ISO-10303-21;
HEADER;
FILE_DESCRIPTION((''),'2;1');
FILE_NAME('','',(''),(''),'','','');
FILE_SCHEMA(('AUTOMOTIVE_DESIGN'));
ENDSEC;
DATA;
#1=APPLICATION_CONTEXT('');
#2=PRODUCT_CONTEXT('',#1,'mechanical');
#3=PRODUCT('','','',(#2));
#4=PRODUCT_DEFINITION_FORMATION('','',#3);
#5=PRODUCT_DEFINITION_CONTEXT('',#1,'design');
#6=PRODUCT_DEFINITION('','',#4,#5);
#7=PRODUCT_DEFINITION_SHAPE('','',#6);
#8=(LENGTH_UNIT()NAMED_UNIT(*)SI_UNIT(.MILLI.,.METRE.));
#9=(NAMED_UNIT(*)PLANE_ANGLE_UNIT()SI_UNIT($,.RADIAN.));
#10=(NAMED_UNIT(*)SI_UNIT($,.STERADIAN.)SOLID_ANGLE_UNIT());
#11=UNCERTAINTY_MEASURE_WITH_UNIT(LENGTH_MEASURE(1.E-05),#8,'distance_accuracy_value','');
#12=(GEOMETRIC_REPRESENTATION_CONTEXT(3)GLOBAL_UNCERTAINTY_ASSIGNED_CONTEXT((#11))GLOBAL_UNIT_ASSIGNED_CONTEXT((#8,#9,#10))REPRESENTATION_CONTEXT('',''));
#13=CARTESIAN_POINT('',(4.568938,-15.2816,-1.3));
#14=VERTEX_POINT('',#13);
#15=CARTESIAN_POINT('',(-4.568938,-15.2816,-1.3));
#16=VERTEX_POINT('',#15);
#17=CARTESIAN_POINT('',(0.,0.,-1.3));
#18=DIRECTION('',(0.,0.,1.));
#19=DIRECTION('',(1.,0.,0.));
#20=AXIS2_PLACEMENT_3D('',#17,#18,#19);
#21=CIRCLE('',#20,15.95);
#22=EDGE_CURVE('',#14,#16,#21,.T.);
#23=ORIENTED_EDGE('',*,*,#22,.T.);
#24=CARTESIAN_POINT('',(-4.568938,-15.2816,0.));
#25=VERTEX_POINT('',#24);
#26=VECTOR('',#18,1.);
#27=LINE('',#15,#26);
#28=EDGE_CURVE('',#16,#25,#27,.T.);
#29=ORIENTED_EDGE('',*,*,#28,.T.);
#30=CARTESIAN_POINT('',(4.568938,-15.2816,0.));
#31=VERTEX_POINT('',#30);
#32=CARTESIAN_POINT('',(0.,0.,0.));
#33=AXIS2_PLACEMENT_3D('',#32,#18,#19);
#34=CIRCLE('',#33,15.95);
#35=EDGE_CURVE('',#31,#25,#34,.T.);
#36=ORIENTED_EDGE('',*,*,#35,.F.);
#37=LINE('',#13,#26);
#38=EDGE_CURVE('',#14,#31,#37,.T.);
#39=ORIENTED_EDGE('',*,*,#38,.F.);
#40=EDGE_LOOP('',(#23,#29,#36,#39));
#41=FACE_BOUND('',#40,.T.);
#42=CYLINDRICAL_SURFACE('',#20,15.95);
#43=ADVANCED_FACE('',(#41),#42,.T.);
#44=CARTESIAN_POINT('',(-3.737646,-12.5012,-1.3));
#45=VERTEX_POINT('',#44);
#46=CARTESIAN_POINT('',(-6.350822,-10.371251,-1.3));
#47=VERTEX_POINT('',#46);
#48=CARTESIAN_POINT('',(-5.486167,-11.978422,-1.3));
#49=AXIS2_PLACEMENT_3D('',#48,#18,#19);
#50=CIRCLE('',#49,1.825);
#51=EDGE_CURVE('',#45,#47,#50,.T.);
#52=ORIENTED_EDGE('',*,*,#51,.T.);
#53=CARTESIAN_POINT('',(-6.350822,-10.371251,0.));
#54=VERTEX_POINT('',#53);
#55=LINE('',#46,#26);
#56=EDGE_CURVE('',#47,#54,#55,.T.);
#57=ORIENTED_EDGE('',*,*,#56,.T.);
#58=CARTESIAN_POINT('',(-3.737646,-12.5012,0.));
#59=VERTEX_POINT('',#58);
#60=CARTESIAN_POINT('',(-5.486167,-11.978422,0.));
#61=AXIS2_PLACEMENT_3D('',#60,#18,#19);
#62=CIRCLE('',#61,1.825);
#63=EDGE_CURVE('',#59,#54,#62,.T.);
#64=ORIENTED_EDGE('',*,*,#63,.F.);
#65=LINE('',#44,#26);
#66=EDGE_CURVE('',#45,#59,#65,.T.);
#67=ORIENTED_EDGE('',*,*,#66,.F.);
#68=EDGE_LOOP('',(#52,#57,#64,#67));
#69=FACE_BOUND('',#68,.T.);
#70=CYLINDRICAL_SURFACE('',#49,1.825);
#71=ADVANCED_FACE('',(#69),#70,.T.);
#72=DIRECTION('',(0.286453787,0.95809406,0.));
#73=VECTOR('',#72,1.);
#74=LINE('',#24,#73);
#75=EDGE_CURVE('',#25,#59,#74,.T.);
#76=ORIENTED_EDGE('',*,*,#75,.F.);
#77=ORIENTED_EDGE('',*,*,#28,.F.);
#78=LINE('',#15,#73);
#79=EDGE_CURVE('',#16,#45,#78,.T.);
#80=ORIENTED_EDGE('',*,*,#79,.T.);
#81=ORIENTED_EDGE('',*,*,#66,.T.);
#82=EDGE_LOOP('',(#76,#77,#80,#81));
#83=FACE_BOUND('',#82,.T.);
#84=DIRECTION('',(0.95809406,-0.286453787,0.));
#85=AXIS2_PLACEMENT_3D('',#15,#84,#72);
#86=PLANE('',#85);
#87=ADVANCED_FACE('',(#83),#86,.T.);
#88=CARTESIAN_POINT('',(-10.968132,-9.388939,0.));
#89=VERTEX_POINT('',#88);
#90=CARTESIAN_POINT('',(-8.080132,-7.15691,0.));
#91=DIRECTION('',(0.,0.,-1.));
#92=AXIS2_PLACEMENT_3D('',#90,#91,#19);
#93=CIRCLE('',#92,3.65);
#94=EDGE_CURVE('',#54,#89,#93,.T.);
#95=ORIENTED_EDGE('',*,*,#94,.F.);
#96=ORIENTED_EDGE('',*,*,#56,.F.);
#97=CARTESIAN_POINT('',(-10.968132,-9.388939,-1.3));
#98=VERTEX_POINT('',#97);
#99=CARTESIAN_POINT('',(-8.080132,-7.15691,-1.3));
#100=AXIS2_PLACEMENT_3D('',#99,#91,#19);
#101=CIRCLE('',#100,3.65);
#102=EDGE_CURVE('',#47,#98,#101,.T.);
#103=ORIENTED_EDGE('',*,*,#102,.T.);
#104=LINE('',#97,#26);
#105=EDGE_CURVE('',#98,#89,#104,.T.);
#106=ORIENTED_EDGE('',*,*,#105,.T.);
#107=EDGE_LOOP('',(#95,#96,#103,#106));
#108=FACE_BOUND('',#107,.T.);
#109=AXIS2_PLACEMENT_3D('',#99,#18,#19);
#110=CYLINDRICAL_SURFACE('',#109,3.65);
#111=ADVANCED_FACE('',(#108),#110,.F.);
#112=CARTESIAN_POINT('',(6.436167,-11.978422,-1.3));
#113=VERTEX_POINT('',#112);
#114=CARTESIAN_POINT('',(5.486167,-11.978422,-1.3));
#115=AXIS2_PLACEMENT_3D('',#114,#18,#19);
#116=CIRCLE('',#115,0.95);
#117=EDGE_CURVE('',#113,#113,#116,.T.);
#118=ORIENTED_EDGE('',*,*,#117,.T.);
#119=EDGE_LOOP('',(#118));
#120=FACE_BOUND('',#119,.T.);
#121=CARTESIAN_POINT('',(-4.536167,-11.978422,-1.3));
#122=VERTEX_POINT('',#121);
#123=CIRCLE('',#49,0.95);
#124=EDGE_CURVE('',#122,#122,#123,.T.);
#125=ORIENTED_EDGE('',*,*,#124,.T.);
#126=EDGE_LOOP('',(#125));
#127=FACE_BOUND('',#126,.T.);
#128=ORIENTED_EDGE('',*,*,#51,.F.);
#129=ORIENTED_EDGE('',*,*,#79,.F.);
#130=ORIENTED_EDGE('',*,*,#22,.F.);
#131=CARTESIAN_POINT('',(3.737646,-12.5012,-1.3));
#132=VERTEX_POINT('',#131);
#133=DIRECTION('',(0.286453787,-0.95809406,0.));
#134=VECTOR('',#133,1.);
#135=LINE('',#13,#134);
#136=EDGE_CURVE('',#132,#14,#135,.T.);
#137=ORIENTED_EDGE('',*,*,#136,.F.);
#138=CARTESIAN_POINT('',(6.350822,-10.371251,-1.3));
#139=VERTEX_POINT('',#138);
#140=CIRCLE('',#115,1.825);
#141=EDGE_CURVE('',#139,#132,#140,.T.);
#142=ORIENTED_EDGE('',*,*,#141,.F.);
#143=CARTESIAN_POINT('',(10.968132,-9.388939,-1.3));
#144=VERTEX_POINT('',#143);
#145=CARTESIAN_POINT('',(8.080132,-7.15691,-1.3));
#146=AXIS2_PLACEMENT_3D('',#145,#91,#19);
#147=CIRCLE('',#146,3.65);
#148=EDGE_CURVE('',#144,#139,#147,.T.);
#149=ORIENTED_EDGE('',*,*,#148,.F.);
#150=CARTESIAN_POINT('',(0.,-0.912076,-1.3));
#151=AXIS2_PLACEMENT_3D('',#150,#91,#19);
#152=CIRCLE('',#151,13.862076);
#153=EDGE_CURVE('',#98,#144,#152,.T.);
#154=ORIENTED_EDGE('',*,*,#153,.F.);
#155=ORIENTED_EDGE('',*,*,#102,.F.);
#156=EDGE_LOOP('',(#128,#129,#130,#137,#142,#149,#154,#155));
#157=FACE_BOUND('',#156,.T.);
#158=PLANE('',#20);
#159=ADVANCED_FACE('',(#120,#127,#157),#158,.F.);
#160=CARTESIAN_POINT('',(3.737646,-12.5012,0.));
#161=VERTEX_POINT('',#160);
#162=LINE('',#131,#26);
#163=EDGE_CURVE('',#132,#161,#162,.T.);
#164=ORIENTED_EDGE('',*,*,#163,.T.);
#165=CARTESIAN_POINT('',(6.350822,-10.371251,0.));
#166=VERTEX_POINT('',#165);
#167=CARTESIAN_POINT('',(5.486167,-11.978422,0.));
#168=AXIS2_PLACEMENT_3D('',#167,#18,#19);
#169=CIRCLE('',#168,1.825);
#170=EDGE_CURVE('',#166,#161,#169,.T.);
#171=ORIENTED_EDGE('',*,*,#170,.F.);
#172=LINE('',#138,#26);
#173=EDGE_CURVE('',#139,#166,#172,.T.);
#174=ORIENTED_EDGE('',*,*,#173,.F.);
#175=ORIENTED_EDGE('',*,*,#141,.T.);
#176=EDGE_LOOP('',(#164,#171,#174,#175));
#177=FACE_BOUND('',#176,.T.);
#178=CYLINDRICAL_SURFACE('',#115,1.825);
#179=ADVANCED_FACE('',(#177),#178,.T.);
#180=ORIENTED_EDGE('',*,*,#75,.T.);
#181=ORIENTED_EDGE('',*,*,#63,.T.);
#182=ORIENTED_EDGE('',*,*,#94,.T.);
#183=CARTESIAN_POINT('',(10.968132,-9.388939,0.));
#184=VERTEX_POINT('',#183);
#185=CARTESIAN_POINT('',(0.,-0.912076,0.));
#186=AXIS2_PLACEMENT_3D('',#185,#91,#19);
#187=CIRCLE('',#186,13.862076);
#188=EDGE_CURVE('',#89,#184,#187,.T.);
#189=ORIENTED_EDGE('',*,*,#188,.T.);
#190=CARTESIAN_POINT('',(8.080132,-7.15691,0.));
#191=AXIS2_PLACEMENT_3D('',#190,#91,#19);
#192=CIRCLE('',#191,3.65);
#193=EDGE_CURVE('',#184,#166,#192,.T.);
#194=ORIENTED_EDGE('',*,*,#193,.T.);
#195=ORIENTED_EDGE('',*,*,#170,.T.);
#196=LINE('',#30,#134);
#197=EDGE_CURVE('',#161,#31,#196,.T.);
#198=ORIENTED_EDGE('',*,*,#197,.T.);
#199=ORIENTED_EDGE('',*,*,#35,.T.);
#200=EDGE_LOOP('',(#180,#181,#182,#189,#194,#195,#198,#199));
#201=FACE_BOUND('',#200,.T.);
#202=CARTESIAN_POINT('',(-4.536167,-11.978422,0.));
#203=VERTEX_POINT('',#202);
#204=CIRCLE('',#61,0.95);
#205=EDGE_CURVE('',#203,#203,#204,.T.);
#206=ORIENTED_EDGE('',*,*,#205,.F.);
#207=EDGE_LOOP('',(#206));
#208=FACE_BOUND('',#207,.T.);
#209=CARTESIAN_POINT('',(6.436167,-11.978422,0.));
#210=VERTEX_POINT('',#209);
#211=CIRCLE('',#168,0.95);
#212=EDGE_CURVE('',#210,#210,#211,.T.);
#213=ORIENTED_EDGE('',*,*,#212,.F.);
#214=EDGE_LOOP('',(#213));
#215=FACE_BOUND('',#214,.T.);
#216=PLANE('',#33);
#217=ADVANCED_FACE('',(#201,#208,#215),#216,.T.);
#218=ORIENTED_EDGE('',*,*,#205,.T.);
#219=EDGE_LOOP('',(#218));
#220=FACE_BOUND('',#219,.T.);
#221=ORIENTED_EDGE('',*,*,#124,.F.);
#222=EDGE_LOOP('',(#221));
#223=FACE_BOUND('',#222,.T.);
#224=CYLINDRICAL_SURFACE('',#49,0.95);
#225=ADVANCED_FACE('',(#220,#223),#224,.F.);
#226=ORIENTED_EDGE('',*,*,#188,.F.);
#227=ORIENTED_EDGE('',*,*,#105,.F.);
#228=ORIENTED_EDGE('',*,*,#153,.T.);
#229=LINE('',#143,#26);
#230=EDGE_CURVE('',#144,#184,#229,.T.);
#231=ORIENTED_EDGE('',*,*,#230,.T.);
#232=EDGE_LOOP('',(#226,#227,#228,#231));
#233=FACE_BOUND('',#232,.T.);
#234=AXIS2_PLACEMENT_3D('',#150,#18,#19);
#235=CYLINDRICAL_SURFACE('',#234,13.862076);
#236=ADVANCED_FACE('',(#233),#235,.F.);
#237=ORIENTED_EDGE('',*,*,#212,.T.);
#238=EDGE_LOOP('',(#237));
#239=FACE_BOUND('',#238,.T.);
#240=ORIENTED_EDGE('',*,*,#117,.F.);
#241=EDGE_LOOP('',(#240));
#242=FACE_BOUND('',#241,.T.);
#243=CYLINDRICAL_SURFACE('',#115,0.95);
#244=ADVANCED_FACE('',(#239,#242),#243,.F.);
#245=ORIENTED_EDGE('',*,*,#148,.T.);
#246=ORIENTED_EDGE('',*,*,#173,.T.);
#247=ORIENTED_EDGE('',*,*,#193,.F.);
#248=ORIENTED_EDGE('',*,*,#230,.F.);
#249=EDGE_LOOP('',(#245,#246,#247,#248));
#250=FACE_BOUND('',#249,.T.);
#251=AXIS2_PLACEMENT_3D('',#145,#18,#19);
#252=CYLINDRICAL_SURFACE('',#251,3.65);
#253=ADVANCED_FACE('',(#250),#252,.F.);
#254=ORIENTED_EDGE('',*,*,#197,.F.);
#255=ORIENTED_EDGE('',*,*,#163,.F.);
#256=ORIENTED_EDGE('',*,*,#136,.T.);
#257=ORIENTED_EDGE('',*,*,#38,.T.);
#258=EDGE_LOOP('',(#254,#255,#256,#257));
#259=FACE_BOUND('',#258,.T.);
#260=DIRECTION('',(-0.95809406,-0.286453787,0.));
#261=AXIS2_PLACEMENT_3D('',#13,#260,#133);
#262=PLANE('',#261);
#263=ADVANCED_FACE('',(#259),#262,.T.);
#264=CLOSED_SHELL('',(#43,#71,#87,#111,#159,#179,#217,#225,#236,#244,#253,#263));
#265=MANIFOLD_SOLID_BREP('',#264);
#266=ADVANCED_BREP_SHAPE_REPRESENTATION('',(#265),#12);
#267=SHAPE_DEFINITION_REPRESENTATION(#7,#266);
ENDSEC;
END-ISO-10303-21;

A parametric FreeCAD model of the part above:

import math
import FreeCAD as App
import Part
import Sketcher
from FreeCAD import Vector

doc = App.newDocument("Part")
params = doc.addObject("Spreadsheet::Sheet", "Params")
for row, (alias, value) in enumerate([
    ("sketch1_diameter", "1.9 mm"),
    ("sketch1_radius", "15.95 mm"),
    ("sketch1_radius2", "3.65 mm"),
    ("pad1_length", "1.3 mm"),
], start=1):
    params.set(f"A{row}", alias)
    params.set(f"B{row}", "=" + value)
    params.setAlias(f"B{row}", alias)

body = doc.addObject("PartDesign::Body", "Body")

sketch1 = doc.addObject("Sketcher::SketchObject", "Sketch")
body.addObject(sketch1)
sketch1.AttachmentSupport = (doc.XY_Plane, [""])
sketch1.MapMode = "FlatFace"
sketch1.addGeometry([
    Part.LineSegment(Vector(3.7, -12.5, 0), Vector(4.6, -15.3, 0)),
    Part.ArcOfCircle(Part.Circle(Vector(0, 0, 0), Vector(0, 0, 1), 15.9), math.radians(-73), math.radians(253)),
    Part.LineSegment(Vector(-4.6, -15.3, 0), Vector(-3.7, -12.5, 0)),
    Part.ArcOfCircle(Part.Circle(Vector(-5.5, -12, 0), Vector(0, 0, 1), 1.8), math.radians(-17), math.radians(118)),
    Part.ArcOfCircle(Part.Circle(Vector(-8.1, -7.2, 0), Vector(0, 0, 1), 3.6), math.radians(-142), math.radians(-62)),
    Part.ArcOfCircle(Part.Circle(Vector(0, -0.9, 0), Vector(0, 0, 1), 13.9), math.radians(-38), math.radians(218)),
    Part.ArcOfCircle(Part.Circle(Vector(8.1, -7.2, 0), Vector(0, 0, 1), 3.6), math.radians(-118), math.radians(-38)),
    Part.ArcOfCircle(Part.Circle(Vector(5.5, -12, 0), Vector(0, 0, 1), 1.8), math.radians(62), math.radians(197)),
    Part.Circle(Vector(5.5, -12, 0), Vector(0, 0, 1), 0.9),
    Part.Circle(Vector(-5.5, -12, 0), Vector(0, 0, 1), 0.9),
], False)
sketch1.addConstraint([
    Sketcher.Constraint("Coincident", 0, 2, 1, 1),
    Sketcher.Constraint("Coincident", 1, 2, 2, 1),
    Sketcher.Constraint("Tangent", 2, 2, 3, 1),
    Sketcher.Constraint("Tangent", 3, 2, 4, 2),
    Sketcher.Constraint("Tangent", 4, 1, 5, 2),
    Sketcher.Constraint("Tangent", 5, 1, 6, 2),
    Sketcher.Constraint("Tangent", 6, 1, 7, 1),
    Sketcher.Constraint("Tangent", 7, 2, 0, 1),
    Sketcher.Constraint("Coincident", 1, 3, -1, 1),
    Sketcher.Constraint("Coincident", 8, 3, 7, 3),
    Sketcher.Constraint("Coincident", 9, 3, 3, 3),
    Sketcher.Constraint("Equal", 4, 6),
    Sketcher.Constraint("Equal", 3, 7),
    Sketcher.Constraint("Equal", 8, 9),
    Sketcher.Constraint("Symmetric", 4, 3, 6, 3, -2),
    Sketcher.Constraint("Symmetric", 2, 2, 7, 2, -2),
    Sketcher.Constraint("Diameter", 8, 1.9),
    Sketcher.Constraint("Radius", 1, 15.95),
    Sketcher.Constraint("Radius", 4, 3.65),
    Sketcher.Constraint("Radius", 3, 1.825),
    Sketcher.Constraint("Radius", 5, 13.862076),
    Sketcher.Constraint("DistanceX", 4, 1, 4, 3, 2.888001),
    Sketcher.Constraint("DistanceY", 0, 2, -1, 1, 15.2816),
    Sketcher.Constraint("DistanceY", 2, 2, -1, 1, 12.5012),
    Sketcher.Constraint("DistanceX", 3, 3, 6, 3, 13.566299),
])
sketch1.setExpression("Constraints[16]", "Params.sketch1_diameter")
sketch1.setExpression("Constraints[17]", "Params.sketch1_radius")
sketch1.setExpression("Constraints[18]", "Params.sketch1_radius2")
pad1 = doc.addObject("PartDesign::Pad", "Pad")
body.addObject(pad1)
pad1.Profile = sketch1
pad1.setExpression("Length", "Params.pad1_length")
pad1.Reversed = True

doc.recompute()
